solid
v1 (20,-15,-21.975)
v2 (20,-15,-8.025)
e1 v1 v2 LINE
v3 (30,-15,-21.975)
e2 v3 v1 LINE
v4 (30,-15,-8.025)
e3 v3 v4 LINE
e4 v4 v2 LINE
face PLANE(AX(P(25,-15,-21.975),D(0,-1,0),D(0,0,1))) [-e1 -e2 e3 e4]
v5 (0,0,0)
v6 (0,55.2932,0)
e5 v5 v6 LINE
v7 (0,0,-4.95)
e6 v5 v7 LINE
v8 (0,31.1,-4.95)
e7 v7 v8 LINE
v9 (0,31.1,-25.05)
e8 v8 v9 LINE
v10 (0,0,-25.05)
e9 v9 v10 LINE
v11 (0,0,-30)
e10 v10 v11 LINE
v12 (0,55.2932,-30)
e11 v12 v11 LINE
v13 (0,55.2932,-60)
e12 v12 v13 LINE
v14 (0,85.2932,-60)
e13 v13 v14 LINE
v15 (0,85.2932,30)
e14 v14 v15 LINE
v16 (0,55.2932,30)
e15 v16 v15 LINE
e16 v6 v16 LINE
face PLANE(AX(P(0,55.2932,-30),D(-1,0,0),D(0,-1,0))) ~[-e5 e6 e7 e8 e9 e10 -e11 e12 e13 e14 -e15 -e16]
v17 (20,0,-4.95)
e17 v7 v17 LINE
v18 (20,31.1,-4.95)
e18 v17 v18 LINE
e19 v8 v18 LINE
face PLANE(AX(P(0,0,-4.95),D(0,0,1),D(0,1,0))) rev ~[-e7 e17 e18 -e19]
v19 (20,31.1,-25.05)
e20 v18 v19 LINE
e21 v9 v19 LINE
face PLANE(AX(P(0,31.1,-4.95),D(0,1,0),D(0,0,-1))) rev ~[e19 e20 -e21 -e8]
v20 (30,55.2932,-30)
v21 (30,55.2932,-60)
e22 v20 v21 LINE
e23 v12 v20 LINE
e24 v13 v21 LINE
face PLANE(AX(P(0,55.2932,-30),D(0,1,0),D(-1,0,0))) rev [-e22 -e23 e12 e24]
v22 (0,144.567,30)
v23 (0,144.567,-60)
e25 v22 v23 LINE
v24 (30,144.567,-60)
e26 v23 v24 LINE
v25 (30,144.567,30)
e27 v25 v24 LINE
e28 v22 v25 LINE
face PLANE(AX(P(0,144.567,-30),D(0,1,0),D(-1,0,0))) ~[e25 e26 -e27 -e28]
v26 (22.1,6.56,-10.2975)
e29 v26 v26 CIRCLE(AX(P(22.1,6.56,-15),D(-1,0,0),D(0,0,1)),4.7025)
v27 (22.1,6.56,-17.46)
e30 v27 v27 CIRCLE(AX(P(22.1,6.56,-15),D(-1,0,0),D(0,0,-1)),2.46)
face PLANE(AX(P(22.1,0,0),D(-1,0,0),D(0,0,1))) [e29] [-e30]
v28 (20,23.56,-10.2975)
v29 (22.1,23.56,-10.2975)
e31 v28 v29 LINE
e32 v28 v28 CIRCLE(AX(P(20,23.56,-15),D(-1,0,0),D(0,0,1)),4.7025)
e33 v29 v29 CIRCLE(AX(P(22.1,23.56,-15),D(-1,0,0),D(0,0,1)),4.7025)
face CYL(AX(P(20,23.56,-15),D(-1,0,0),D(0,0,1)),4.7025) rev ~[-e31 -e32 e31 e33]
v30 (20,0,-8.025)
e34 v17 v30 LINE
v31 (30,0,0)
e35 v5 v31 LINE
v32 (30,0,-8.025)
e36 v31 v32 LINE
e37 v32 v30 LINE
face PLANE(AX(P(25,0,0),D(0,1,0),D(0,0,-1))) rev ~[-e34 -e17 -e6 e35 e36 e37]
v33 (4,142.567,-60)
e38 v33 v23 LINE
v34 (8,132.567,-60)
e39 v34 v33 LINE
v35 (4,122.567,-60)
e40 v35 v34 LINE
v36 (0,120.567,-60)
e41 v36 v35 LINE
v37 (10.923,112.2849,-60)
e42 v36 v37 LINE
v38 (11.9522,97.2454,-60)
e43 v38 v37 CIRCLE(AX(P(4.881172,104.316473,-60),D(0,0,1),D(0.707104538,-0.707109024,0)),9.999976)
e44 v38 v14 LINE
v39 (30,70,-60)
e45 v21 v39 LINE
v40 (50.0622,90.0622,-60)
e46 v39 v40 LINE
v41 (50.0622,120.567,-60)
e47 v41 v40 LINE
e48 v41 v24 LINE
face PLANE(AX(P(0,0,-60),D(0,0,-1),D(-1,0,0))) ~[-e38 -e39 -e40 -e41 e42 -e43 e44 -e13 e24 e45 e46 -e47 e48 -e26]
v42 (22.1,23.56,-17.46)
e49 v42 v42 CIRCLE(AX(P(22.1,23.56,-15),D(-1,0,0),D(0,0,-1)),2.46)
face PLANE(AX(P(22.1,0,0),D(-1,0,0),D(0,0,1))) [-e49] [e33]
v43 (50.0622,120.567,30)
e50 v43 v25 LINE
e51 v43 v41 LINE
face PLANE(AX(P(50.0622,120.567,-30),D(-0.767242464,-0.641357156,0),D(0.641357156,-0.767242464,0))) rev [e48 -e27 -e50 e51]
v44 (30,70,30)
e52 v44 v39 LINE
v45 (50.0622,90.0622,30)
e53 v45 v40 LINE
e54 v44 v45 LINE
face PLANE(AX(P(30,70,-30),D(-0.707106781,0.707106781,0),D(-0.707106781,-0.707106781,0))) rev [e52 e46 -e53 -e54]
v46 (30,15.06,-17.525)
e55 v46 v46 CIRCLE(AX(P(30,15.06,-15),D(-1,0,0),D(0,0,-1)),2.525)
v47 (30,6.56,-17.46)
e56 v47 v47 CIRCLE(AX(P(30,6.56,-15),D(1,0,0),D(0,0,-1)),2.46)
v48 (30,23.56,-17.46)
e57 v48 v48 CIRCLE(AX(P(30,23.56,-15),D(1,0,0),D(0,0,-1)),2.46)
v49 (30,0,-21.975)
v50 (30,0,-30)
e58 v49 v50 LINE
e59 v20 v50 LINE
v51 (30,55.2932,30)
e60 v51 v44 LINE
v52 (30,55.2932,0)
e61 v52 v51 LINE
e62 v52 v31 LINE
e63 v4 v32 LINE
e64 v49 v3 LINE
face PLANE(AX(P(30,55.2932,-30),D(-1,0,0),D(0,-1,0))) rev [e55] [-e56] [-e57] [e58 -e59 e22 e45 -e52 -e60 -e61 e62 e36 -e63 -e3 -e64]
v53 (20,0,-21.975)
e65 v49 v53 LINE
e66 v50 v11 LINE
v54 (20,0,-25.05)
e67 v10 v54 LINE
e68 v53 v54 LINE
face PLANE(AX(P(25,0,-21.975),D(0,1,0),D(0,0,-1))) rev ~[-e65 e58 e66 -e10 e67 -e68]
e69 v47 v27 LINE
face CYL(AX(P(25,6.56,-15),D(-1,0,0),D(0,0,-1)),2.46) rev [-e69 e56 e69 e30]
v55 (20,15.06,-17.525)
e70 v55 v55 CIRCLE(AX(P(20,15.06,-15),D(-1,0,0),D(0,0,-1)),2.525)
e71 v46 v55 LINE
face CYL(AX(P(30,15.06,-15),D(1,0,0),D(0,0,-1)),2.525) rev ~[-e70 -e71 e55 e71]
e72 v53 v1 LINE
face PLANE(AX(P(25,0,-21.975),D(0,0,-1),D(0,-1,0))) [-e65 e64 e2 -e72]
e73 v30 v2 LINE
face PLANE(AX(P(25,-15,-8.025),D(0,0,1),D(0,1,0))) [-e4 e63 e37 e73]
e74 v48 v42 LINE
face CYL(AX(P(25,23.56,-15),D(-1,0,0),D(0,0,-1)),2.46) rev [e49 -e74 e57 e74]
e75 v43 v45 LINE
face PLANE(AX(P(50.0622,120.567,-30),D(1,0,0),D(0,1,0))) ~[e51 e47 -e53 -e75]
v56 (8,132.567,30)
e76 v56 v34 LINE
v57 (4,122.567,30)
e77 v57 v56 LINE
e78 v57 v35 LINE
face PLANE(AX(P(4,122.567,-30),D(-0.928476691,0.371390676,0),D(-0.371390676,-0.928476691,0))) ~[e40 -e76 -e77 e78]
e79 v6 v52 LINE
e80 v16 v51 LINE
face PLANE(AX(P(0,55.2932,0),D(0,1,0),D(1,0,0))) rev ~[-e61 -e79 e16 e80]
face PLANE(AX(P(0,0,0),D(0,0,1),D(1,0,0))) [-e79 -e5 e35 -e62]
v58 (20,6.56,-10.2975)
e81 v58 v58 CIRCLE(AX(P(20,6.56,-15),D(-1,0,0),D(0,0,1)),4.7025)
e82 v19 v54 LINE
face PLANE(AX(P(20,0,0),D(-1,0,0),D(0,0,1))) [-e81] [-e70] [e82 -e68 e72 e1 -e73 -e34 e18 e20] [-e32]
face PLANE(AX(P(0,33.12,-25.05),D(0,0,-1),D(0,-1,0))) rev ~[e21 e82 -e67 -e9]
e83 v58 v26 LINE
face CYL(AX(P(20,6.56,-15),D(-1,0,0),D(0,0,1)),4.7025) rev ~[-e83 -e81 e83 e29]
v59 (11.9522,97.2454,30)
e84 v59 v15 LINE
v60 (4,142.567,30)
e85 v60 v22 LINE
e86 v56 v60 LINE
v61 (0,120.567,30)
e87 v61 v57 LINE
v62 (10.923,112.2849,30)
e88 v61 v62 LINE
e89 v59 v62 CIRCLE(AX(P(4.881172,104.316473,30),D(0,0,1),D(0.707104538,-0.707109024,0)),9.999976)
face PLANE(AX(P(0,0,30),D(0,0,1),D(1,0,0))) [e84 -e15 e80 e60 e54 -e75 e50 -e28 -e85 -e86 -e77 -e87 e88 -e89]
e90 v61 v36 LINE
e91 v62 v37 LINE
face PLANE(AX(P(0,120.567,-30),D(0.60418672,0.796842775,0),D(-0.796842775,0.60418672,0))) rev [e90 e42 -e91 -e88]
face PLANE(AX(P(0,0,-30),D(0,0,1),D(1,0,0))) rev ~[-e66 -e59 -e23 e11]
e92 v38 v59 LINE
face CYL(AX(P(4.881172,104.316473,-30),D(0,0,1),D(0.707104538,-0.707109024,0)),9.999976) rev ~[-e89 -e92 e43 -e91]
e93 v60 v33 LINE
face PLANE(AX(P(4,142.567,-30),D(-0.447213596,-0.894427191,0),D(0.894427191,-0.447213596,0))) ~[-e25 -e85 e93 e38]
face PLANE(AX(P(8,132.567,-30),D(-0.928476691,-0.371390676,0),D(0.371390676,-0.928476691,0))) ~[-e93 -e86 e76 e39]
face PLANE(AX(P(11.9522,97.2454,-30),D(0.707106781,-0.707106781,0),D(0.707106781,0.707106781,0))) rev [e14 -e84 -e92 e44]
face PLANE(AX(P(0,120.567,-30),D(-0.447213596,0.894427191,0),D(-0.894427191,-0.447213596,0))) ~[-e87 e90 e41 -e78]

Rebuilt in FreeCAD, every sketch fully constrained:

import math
import FreeCAD as App
import Part
import Sketcher
from FreeCAD import Vector
Q = App.Units.Quantity


def add_polygon(sketch, points):
    """Adds a closed chain of lines whose ends are joined by coincident constraints."""
    first, n = sketch.GeometryCount, len(points)
    for a, b in zip(points, points[1:] + points[:1]):
        sketch.addGeometry(Part.LineSegment(App.Vector(*a, 0), App.Vector(*b, 0)), False)
    for i in range(n):
        sketch.addConstraint(Sketcher.Constraint("Coincident", first + i, 2, first + (i + 1) % n, 1))

doc = App.newDocument("Part")
params = doc.addObject("Spreadsheet::Sheet", "Params")
for row, (alias, value) in enumerate([
    ("sketch1_width", "25 mm"),
    ("sketch1_height", "40 mm"),
    ("pad1_length", "30 mm"),
    ("sketch2_diameter", "4.92 mm"),
    ("pocket1_length", "30 mm"),
    ("sketch3_height", "20.1 mm"),
    ("sketch3_width", "33.12 mm"),
    ("pocket2_length", "20 mm"),
    ("sketch4_height", "13.95 mm"),
    ("sketch4_width", "5 mm"),
    ("pad2_length", "15 mm"),
    ("sketch5_diameter", "4.92 mm"),
    ("pocket3_length", "2.1 mm"),
    ("sketch6_diameter", "4.92 mm"),
    ("pocket4_length", "10 mm"),
    ("sketch7_diameter", "4.92 mm"),
    ("pocket5_length", "2.1 mm"),
    ("sketch8_diameter", "4.92 mm"),
    ("sketch8_width", "40 mm"),
    ("sketch8_width2", "15 mm"),
    ("sketch8_height", "30 mm"),
    ("sketch8_height2", "13.95 mm"),
    ("pad3_length", "5 mm"),
    ("sketch9_width", "30 mm"),
    ("pad4_length", "30 mm"),
    ("sketch10_diameter", "5.05 mm"),
    ("pocket6_length", "30 mm"),
    ("sketch11_width", "2.02 mm"),
    ("sketch11_height", "20.1 mm"),
    ("pad5_length", "20 mm"),
    ("sketch12_radius", "10 mm"),
    ("sketch12_width", "30 mm"),
    ("pad6_length", "30 mm"),
    ("sketch13_width", "30 mm"),
    ("sketch13_radius", "10 mm"),
    ("pad7_length", "30 mm"),
], start=1):
    params.set(f"A{row}", alias)
    params.set(f"B{row}", "=" + value)
    params.setAlias(f"B{row}", alias)

body = doc.addObject("PartDesign::Body", "Body")

sketch1 = body.newObject("Sketcher::SketchObject", "Sketch")
sketch1.AttachmentSupport = (doc.getObject("XY_Plane"), [""])
sketch1.MapMode = "FlatFace"
add_polygon(sketch1, [(0, 40), (0, 0), (25, 0), (25, 40)])
sketch1.addConstraint(Sketcher.Constraint("Vertical", 0))
sketch1.addConstraint(Sketcher.Constraint("Horizontal", 1))
sketch1.addConstraint(Sketcher.Constraint("Vertical", 2))
sketch1.addConstraint(Sketcher.Constraint("Horizontal", 3))
sketch1.addConstraint(Sketcher.Constraint("Coincident", 0, 2, -1, 1))
sketch1.addConstraint(Sketcher.Constraint("DistanceX", 1, 1, 1, 2, 25.0))
sketch1.addConstraint(Sketcher.Constraint("DistanceY", 0, 2, 0, 1, 40.0))
sketch1.setExpression("Constraints[9]", "Params.sketch1_width")
sketch1.setExpression("Constraints[10]", "Params.sketch1_height")
pad1 = body.newObject("PartDesign::Pad", "Pad")
pad1.Profile = sketch1
pad1.setExpression("Length", "Params.pad1_length")
pad1.Reversed = True

sketch2 = body.newObject("Sketcher::SketchObject", "Sketch001")
sketch2.AttachmentSupport = (doc.getObject("YZ_Plane"), [""])
sketch2.MapMode = "FlatFace"
sketch2.AttachmentOffset = App.Placement(Vector(0, 0, 25), App.Rotation())
sketch2.addGeometry(Part.Circle(Vector(6.6, -15, 0), Vector(0, 0, 1), 2.5), False)
sketch2.addConstraint(Sketcher.Constraint("Diameter", 0, 4.92))
sketch2.addConstraint(Sketcher.Constraint("DistanceY", 0, 3, -1, 1, 15.0))
sketch2.addConstraint(Sketcher.Constraint("DistanceX", -1, 1, 0, 3, 6.56))
sketch2.setExpression("Constraints[0]", "Params.sketch2_diameter")
pocket1 = body.newObject("PartDesign::Pocket", "Pocket")
pocket1.Profile = sketch2
pocket1.setExpression("Length", "Params.pocket1_length")

sketch3 = body.newObject("Sketcher::SketchObject", "Sketch002")
sketch3.AttachmentSupport = (doc.getObject("YZ_Plane"), [""])
sketch3.MapMode = "FlatFace"
add_polygon(sketch3, [(0, -25), (0, -5), (33, -5), (33, -25)])
sketch3.addConstraint(Sketcher.Constraint("Vertical", 0))
sketch3.addConstraint(Sketcher.Constraint("Horizontal", 1))
sketch3.addConstraint(Sketcher.Constraint("Vertical", 2))
sketch3.addConstraint(Sketcher.Constraint("Horizontal", 3))
sketch3.addConstraint(Sketcher.Constraint("PointOnObject", 0, 2, -2))
sketch3.addConstraint(Sketcher.Constraint("DistanceY", 0, 1, 0, 2, 20.1))
sketch3.addConstraint(Sketcher.Constraint("DistanceX", 1, 1, 1, 2, 33.12))
sketch3.addConstraint(Sketcher.Constraint("DistanceY", 0, 2, -1, 1, 4.95))
sketch3.setExpression("Constraints[9]", "Params.sketch3_height")
sketch3.setExpression("Constraints[10]", "Params.sketch3_width")
pocket2 = body.newObject("PartDesign::Pocket", "Pocket001")
pocket2.Profile = sketch3
pocket2.setExpression("Length", "Params.pocket2_length")
pocket2.Reversed = True

sketch4 = body.newObject("Sketcher::SketchObject", "Sketch003")
sketch4.AttachmentSupport = (doc.getObject("XZ_Plane"), [""])
sketch4.MapMode = "FlatFace"
add_polygon(sketch4, [(25, -8), (20, -8), (20, -22), (25, -22)])
sketch4.addConstraint(Sketcher.Constraint("Horizontal", 0))
sketch4.addConstraint(Sketcher.Constraint("Vertical", 1))
sketch4.addConstraint(Sketcher.Constraint("Horizontal", 2))
sketch4.addConstraint(Sketcher.Constraint("Vertical", 3))
sketch4.addConstraint(Sketcher.Constraint("DistanceY", 1, 2, 1, 1, 13.95))
sketch4.addConstraint(Sketcher.Constraint("DistanceX", 0, 2, 0, 1, 5.0))
sketch4.addConstraint(Sketcher.Constraint("DistanceX", -1, 1, 0, 2, 20.0))
sketch4.addConstraint(Sketcher.Constraint("DistanceY", 0, 2, -1, 1, 8.025))
sketch4.setExpression("Constraints[8]", "Params.sketch4_height")
sketch4.setExpression("Constraints[9]", "Params.sketch4_width")
pad2 = body.newObject("PartDesign::Pad", "Pad001")
pad2.Profile = sketch4
pad2.setExpression("Length", "Params.pad2_length")

sketch5 = body.newObject("Sketcher::SketchObject", "Sketch004")
sketch5.AttachmentSupport = (doc.getObject("YZ_Plane"), [""])
sketch5.MapMode = "FlatFace"
sketch5.AttachmentOffset = App.Placement(Vector(0, 0, 20), App.Rotation())
sketch5.addGeometry(Part.Circle(Vector(6.6, -15, 0), Vector(0, 0, 1), 4.7), False)
sketch5.addGeometry(Part.Circle(Vector(6.6, -15, 0), Vector(0, 0, 1), 2.5), False)
sketch5.addConstraint(Sketcher.Constraint("Coincident", 1, 3, 0, 3))
sketch5.addConstraint(Sketcher.Constraint("Diameter", 0, 9.405))
sketch5.addConstraint(Sketcher.Constraint("Diameter", 1, 4.92))
sketch5.addConstraint(Sketcher.Constraint("DistanceY", 0, 3, -1, 1, 15.0))
sketch5.addConstraint(Sketcher.Constraint("DistanceX", -1, 1, 0, 3, 6.56))
sketch5.setExpression("Constraints[2]", "Params.sketch5_diameter")
pocket3 = body.newObject("PartDesign::Pocket", "Pocket002")
pocket3.Profile = sketch5
pocket3.setExpression("Length", "Params.pocket3_length")
pocket3.Reversed = True

sketch6 = body.newObject("Sketcher::SketchObject", "Sketch005")
sketch6.AttachmentSupport = (doc.getObject("YZ_Plane"), [""])
sketch6.MapMode = "FlatFace"
sketch6.AttachmentOffset = App.Placement(Vector(0, 0, 25), App.Rotation())
sketch6.addGeometry(Part.Circle(Vector(23.6, -15, 0), Vector(0, 0, 1), 2.5), False)
sketch6.addConstraint(Sketcher.Constraint("Diameter", 0, 4.92))
sketch6.addConstraint(Sketcher.Constraint("DistanceY", 0, 3, -1, 1, 15.0))
sketch6.addConstraint(Sketcher.Constraint("DistanceX", -1, 1, 0, 3, 23.56))
sketch6.setExpression("Constraints[0]", "Params.sketch6_diameter")
pocket4 = body.newObject("PartDesign::Pocket", "Pocket003")
pocket4.Profile = sketch6
pocket4.setExpression("Length", "Params.pocket4_length")

sketch7 = body.newObject("Sketcher::SketchObject", "Sketch006")
sketch7.AttachmentSupport = (doc.getObject("YZ_Plane"), [""])
sketch7.MapMode = "FlatFace"
sketch7.AttachmentOffset = App.Placement(Vector(0, 0, 20), App.Rotation())
sketch7.addGeometry(Part.Circle(Vector(23.6, -15, 0), Vector(0, 0, 1), 4.7), False)
sketch7.addGeometry(Part.Circle(Vector(23.6, -15, 0), Vector(0, 0, 1), 2.5), False)
sketch7.addConstraint(Sketcher.Constraint("Coincident", 1, 3, 0, 3))
sketch7.addConstraint(Sketcher.Constraint("Diameter", 0, 9.405))
sketch7.addConstraint(Sketcher.Constraint("Diameter", 1, 4.92))
sketch7.addConstraint(Sketcher.Constraint("DistanceY", 0, 3, -1, 1, 15.0))
sketch7.addConstraint(Sketcher.Constraint("DistanceX", -1, 1, 0, 3, 23.56))
sketch7.setExpression("Constraints[2]", "Params.sketch7_diameter")
pocket5 = body.newObject("PartDesign::Pocket", "Pocket004")
pocket5.Profile = sketch7
pocket5.setExpression("Length", "Params.pocket5_length")
pocket5.Reversed = True

sketch8 = body.newObject("Sketcher::SketchObject", "Sketch007")
sketch8.AttachmentSupport = (doc.getObject("YZ_Plane"), [""])
sketch8.MapMode = "FlatFace"
sketch8.AttachmentOffset = App.Placement(Vector(0, 0, 25), App.Rotation())
add_polygon(sketch8, [(0, -30), (40, -30), (40, 0), (0, 0), (0, -8), (-15, -8), (-15, -22), (0, -22)])
sketch8.addGeometry(Part.Circle(Vector(6.6, -15, 0), Vector(0, 0, 1), 2.5), False)
sketch8.addGeometry(Part.Circle(Vector(23.6, -15, 0), Vector(0, 0, 1), 2.5), False)
sketch8.addConstraint(Sketcher.Constraint("Horizontal", 0))
sketch8.addConstraint(Sketcher.Constraint("Vertical", 1))
sketch8.addConstraint(Sketcher.Constraint("Horizontal", 2))
sketch8.addConstraint(Sketcher.Constraint("Vertical", 3))
sketch8.addConstraint(Sketcher.Constraint("Horizontal", 4))
sketch8.addConstraint(Sketcher.Constraint("Vertical", 5))
sketch8.addConstraint(Sketcher.Constraint("Horizontal", 6))
sketch8.addConstraint(Sketcher.Constraint("Vertical", 7))
sketch8.addConstraint(Sketcher.Constraint("Coincident", 2, 2, -1, 1))
sketch8.addConstraint(Sketcher.Constraint("Equal", 8, 9))
sketch8.addConstraint(Sketcher.Constraint("PointOnObject", 6, 2, -2))
sketch8.addConstraint(Sketcher.Constraint("Horizontal", 8, 3, 9, 3))
sketch8.addConstraint(Sketcher.Constraint("Equal", 3, 7))
sketch8.addConstraint(Sketcher.Constraint("Diameter", 8, 4.92))
sketch8.addConstraint(Sketcher.Constraint("DistanceX", 0, 1, 0, 2, 40.0))
sketch8.addConstraint(Sketcher.Constraint("DistanceX", 4, 2, 4, 1, 15.0))
sketch8.addConstraint(Sketcher.Constraint("DistanceY", 1, 1, 1, 2, 30.0))
sketch8.addConstraint(Sketcher.Constraint("DistanceY", 8, 3, -1, 1, 15.0))
sketch8.addConstraint(Sketcher.Constraint("DistanceX", 8, 3, 9, 3, 17.0))
sketch8.addConstraint(Sketcher.Constraint("DistanceY", 5, 2, 5, 1, 13.95))
sketch8.addConstraint(Sketcher.Constraint("DistanceX", -1, 1, 8, 3, 6.56))
sketch8.setExpression("Constraints[21]", "Params.sketch8_diameter")
sketch8.setExpression("Constraints[22]", "Params.sketch8_width")
sketch8.setExpression("Constraints[23]", "Params.sketch8_width2")
sketch8.setExpression("Constraints[24]", "Params.sketch8_height")
sketch8.setExpression("Constraints[27]", "Params.sketch8_height2")
pad3 = body.newObject("PartDesign::Pad", "Pad002")
pad3.Profile = sketch8
pad3.setExpression("Length", "Params.pad3_length")

sketch9 = body.newObject("Sketcher::SketchObject", "Sketch008")
sketch9.AttachmentSupport = (doc.getObject("XZ_Plane"), [""])
sketch9.MapMode = "FlatFace"
sketch9.AttachmentOffset = App.Placement(Vector(0, 0, -40), App.Rotation())
add_polygon(sketch9, [(30, -30), (0, -30), (0, 0), (30, 0)])
sketch9.addConstraint(Sketcher.Constraint("Horizontal", 0))
sketch9.addConstraint(Sketcher.Constraint("Vertical", 1))
sketch9.addConstraint(Sketcher.Constraint("Horizontal", 2))
sketch9.addConstraint(Sketcher.Constraint("Vertical", 3))
sketch9.addConstraint(Sketcher.Constraint("Coincident", 1, 2, -1, 1))
sketch9.addConstraint(Sketcher.Constraint("Equal", 2, 1))
sketch9.addConstraint(Sketcher.Constraint("DistanceX", 0, 2, 0, 1, 30.0))
sketch9.setExpression("Constraints[10]", "Params.sketch9_width")
pad4 = body.newObject("PartDesign::Pad", "Pad003")
pad4.Profile = sketch9
pad4.setExpression("Length", "Params.pad4_length")
pad4.Reversed = True

sketch10 = body.newObject("Sketcher::SketchObject", "Sketch009")
sketch10.AttachmentSupport = (doc.getObject("YZ_Plane"), [""])
sketch10.MapMode = "FlatFace"
sketch10.AttachmentOffset = App.Placement(Vector(0, 0, 30), App.Rotation())
sketch10.addGeometry(Part.Circle(Vector(15.1, -15, 0), Vector(0, 0, 1), 2.5), False)
sketch10.addConstraint(Sketcher.Constraint("Diameter", 0, 5.05))
sketch10.addConstraint(Sketcher.Constraint("DistanceY", 0, 3, -1, 1, 15.0))
sketch10.addConstraint(Sketcher.Constraint("DistanceX", -1, 1, 0, 3, 15.06))
sketch10.setExpression("Constraints[0]", "Params.sketch10_diameter")
pocket6 = body.newObject("PartDesign::Pocket", "Pocket005")
pocket6.Profile = sketch10
pocket6.setExpression("Length", "Params.pocket6_length")

sketch11 = body.newObject("Sketcher::SketchObject", "Sketch010")
sketch11.AttachmentSupport = (doc.getObject("YZ_Plane"), [""])
sketch11.MapMode = "FlatFace"
add_polygon(sketch11, [(33.1, -5), (33.1, -25.1), (31.1, -25.1), (31.1, -5)])
sketch11.addConstraint(Sketcher.Constraint("Vertical", 0))
sketch11.addConstraint(Sketcher.Constraint("Horizontal", 1))
sketch11.addConstraint(Sketcher.Constraint("Vertical", 2))
sketch11.addConstraint(Sketcher.Constraint("Horizontal", 3))
sketch11.addConstraint(Sketcher.Constraint("DistanceX", 1, 2, 1, 1, 2.02))
sketch11.addConstraint(Sketcher.Constraint("DistanceY", 0, 2, 0, 1, 20.1))
sketch11.addConstraint(Sketcher.Constraint("DistanceX", -1, 1, 1, 2, 31.1))
sketch11.addConstraint(Sketcher.Constraint("DistanceY", 0, 2, -1, 1, 25.05))
sketch11.setExpression("Constraints[8]", "Params.sketch11_width")
sketch11.setExpression("Constraints[9]", "Params.sketch11_height")
pad5 = body.newObject("PartDesign::Pad", "Pad004")
pad5.Profile = sketch11
pad5.setExpression("Length", "Params.pad5_length")

sketch12 = body.newObject("Sketcher::SketchObject", "Sketch011")
sketch12.AttachmentSupport = (doc.getObject("XY_Plane"), [""])
sketch12.MapMode = "FlatFace"
sketch12.addGeometry(Part.LineSegment(Vector(0, 85.3, 0), Vector(0, 70, 0)), False)
sketch12.addGeometry(Part.LineSegment(Vector(0, 70, 0), Vector(30, 70, 0)), False)
sketch12.addGeometry(Part.LineSegment(Vector(30, 70, 0), Vector(50.1, 90.1, 0)), False)
sketch12.addGeometry(Part.LineSegment(Vector(50.1, 90.1, 0), Vector(50.1, 120.6, 0)), False)
sketch12.addGeometry(Part.LineSegment(Vector(50.1, 120.6, 0), Vector(30, 144.6, 0)), False)
sketch12.addGeometry(Part.LineSegment(Vector(30, 144.6, 0), Vector(0, 144.6, 0)), False)
sketch12.addGeometry(Part.LineSegment(Vector(0, 144.6, 0), Vector(4, 142.6, 0)), False)
sketch12.addGeometry(Part.LineSegment(Vector(4, 142.6, 0), Vector(8, 132.6, 0)), False)
sketch12.addGeometry(Part.LineSegment(Vector(8, 132.6, 0), Vector(4, 122.6, 0)), False)
sketch12.addGeometry(Part.LineSegment(Vector(4, 122.6, 0), Vector(0, 120.6, 0)), False)
sketch12.addGeometry(Part.LineSegment(Vector(0, 120.6, 0), Vector(10.9, 112.3, 0)), False)
sketch12.addGeometry(Part.ArcOfCircle(Part.Circle(Vector(4.9, 104.3, 0), Vector(0, 0, 1), 10), math.radians(-45), math.radians(53)), False)
sketch12.addGeometry(Part.LineSegment(Vector(12, 97.2, 0), Vector(0, 85.3, 0)), False)
sketch12.addConstraint(Sketcher.Constraint("Coincident", 0, 2, 1, 1))
sketch12.addConstraint(Sketcher.Constraint("Coincident", 1, 2, 2, 1))
sketch12.addConstraint(Sketcher.Constraint("Coincident", 2, 2, 3, 1))
sketch12.addConstraint(Sketcher.Constraint("Coincident", 3, 2, 4, 1))
sketch12.addConstraint(Sketcher.Constraint("Coincident", 4, 2, 5, 1))
sketch12.addConstraint(Sketcher.Constraint("Coincident", 5, 2, 6, 1))
sketch12.addConstraint(Sketcher.Constraint("Coincident", 6, 2, 7, 1))
sketch12.addConstraint(Sketcher.Constraint("Coincident", 7, 2, 8, 1))
sketch12.addConstraint(Sketcher.Constraint("Coincident", 8, 2, 9, 1))
sketch12.addConstraint(Sketcher.Constraint("Coincident", 9, 2, 10, 1))
sketch12.addConstraint(Sketcher.Constraint("Tangent", 10, 2, 11, 2))
sketch12.addConstraint(Sketcher.Constraint("Tangent", 11, 1, 12, 1))
sketch12.addConstraint(Sketcher.Constraint("Coincident", 12, 2, 0, 1))
sketch12.addConstraint(Sketcher.Constraint("Vertical", 0))
sketch12.addConstraint(Sketcher.Constraint("Horizontal", 1))
sketch12.addConstraint(Sketcher.Constraint("Vertical", 3))
sketch12.addConstraint(Sketcher.Constraint("Horizontal", 5))
sketch12.addConstraint(Sketcher.Constraint("PointOnObject", 0, 2, -2))
sketch12.addConstraint(Sketcher.Constraint("PointOnObject", 5, 2, -2))
sketch12.addConstraint(Sketcher.Constraint("PointOnObject", 9, 2, -2))
sketch12.addConstraint(Sketcher.Constraint("Parallel", 2, 12))
sketch12.addConstraint(Sketcher.Constraint("Horizontal", 3, 2, 9, 2))
sketch12.addConstraint(Sketcher.Constraint("Vertical", 1, 2, 4, 2))
sketch12.addConstraint(Sketcher.Constraint("Vertical", 6, 2, 8, 2))
sketch12.addConstraint(Sketcher.Constraint("Equal", 7, 8))
sketch12.addConstraint(Sketcher.Constraint("Equal", 6, 9))
sketch12.addConstraint(Sketcher.Constraint("Radius", 11, 10.0))
sketch12.addConstraint(Sketcher.Constraint("Angle", 2, Q("45 deg")))
sketch12.addConstraint(Sketcher.Constraint("DistanceY", 7, 2, 6, 2, 10.0))
sketch12.addConstraint(Sketcher.Constraint("DistanceX", 1, 1, 1, 2, 30.0))
sketch12.addConstraint(Sketcher.Constraint("DistanceY", -1, 1, 0, 2, 70.0))
sketch12.addConstraint(Sketcher.Constraint("DistanceX", -1, 1, 6, 2, 4.0))
sketch12.addConstraint(Sketcher.Constraint("DistanceX", -1, 1, 7, 2, 8.0))
sketch12.addConstraint(Sketcher.Constraint("DistanceY", 3, 2, 4, 2, 24.0))
sketch12.addConstraint(Sketcher.Constraint("Angle", 10, Q("-37.1703 deg")))
sketch12.addConstraint(Sketcher.Constraint("Distance", 12, 16.903))
sketch12.addConstraint(Sketcher.Constraint("DistanceY", 0, 2, 0, 1, 15.2932))
sketch12.addConstraint(Sketcher.Constraint("DistanceY", 3, 1, 3, 2, 30.5048))
sketch12.setExpression("Constraints[26]", "Params.sketch12_radius")
sketch12.setExpression("Constraints[29]", "Params.sketch12_width")
pad6 = body.newObject("PartDesign::Pad", "Pad005")
pad6.Profile = sketch12
pad6.setExpression("Length", "Params.pad6_length")
pad6.Reversed = True

sketch13 = body.newObject("Sketcher::SketchObject", "Sketch012")
sketch13.AttachmentSupport = (doc.getObject("XY_Plane"), [""])
sketch13.MapMode = "FlatFace"
sketch13.addGeometry(Part.ArcOfCircle(Part.Circle(Vector(4.9, 104.3, 0), Vector(0, 0, 1), 10), math.radians(-45), math.radians(53)), False)
sketch13.addGeometry(Part.LineSegment(Vector(12, 97.2, 0), Vector(0, 85.3, 0)), False)
sketch13.addGeometry(Part.LineSegment(Vector(0, 85.3, 0), Vector(0, 55.3, 0)), False)
sketch13.addGeometry(Part.LineSegment(Vector(0, 55.3, 0), Vector(30, 55.3, 0)), False)
sketch13.addGeometry(Part.LineSegment(Vector(30, 55.3, 0), Vector(30, 70, 0)), False)
sketch13.addGeometry(Part.LineSegment(Vector(30, 70, 0), Vector(50.1, 90.1, 0)), False)
sketch13.addGeometry(Part.LineSegment(Vector(50.1, 90.1, 0), Vector(50.1, 120.6, 0)), False)
sketch13.addGeometry(Part.LineSegment(Vector(50.1, 120.6, 0), Vector(30, 144.6, 0)), False)
sketch13.addGeometry(Part.LineSegment(Vector(30, 144.6, 0), Vector(0, 144.6, 0)), False)
sketch13.addGeometry(Part.LineSegment(Vector(0, 144.6, 0), Vector(4, 142.6, 0)), False)
sketch13.addGeometry(Part.LineSegment(Vector(4, 142.6, 0), Vector(8, 132.6, 0)), False)
sketch13.addGeometry(Part.LineSegment(Vector(8, 132.6, 0), Vector(4, 122.6, 0)), False)
sketch13.addGeometry(Part.LineSegment(Vector(4, 122.6, 0), Vector(0, 120.6, 0)), False)
sketch13.addGeometry(Part.LineSegment(Vector(0, 120.6, 0), Vector(10.9, 112.3, 0)), False)
sketch13.addConstraint(Sketcher.Constraint("Tangent", 0, 1, 1, 1))
sketch13.addConstraint(Sketcher.Constraint("Coincident", 1, 2, 2, 1))
sketch13.addConstraint(Sketcher.Constraint("Coincident", 2, 2, 3, 1))
sketch13.addConstraint(Sketcher.Constraint("Coincident", 3, 2, 4, 1))
sketch13.addConstraint(Sketcher.Constraint("Coincident", 4, 2, 5, 1))
sketch13.addConstraint(Sketcher.Constraint("Coincident", 5, 2, 6, 1))
sketch13.addConstraint(Sketcher.Constraint("Coincident", 6, 2, 7, 1))
sketch13.addConstraint(Sketcher.Constraint("Coincident", 7, 2, 8, 1))
sketch13.addConstraint(Sketcher.Constraint("Coincident", 8, 2, 9, 1))
sketch13.addConstraint(Sketcher.Constraint("Coincident", 9, 2, 10, 1))
sketch13.addConstraint(Sketcher.Constraint("Coincident", 10, 2, 11, 1))
sketch13.addConstraint(Sketcher.Constraint("Coincident", 11, 2, 12, 1))
sketch13.addConstraint(Sketcher.Constraint("Coincident", 12, 2, 13, 1))
sketch13.addConstraint(Sketcher.Constraint("Tangent", 13, 2, 0, 2))
sketch13.addConstraint(Sketcher.Constraint("Vertical", 2))
sketch13.addConstraint(Sketcher.Constraint("Horizontal", 3))
sketch13.addConstraint(Sketcher.Constraint("Vertical", 4))
sketch13.addConstraint(Sketcher.Constraint("Vertical", 6))
sketch13.addConstraint(Sketcher.Constraint("Horizontal", 8))
sketch13.addConstraint(Sketcher.Constraint("PointOnObject", 1, 2, -2))
sketch13.addConstraint(Sketcher.Constraint("PointOnObject", 8, 2, -2))
sketch13.addConstraint(Sketcher.Constraint("PointOnObject", 12, 2, -2))
sketch13.addConstraint(Sketcher.Constraint("Parallel", 1, 5))
sketch13.addConstraint(Sketcher.Constraint("Horizontal", 6, 2, 12, 2))
sketch13.addConstraint(Sketcher.Constraint("Vertical", 4, 2, 7, 2))
sketch13.addConstraint(Sketcher.Constraint("Vertical", 9, 2, 11, 2))
sketch13.addConstraint(Sketcher.Constraint("Equal", 8, 2))
sketch13.addConstraint(Sketcher.Constraint("Equal", 10, 11))
sketch13.addConstraint(Sketcher.Constraint("Equal", 9, 12))
sketch13.addConstraint(Sketcher.Constraint("DistanceX", 3, 1, 3, 2, 30.0))
sketch13.addConstraint(Sketcher.Constraint("Radius", 0, 10.0))
sketch13.addConstraint(Sketcher.Constraint("Angle", 1, Q("-135 deg")))
sketch13.addConstraint(Sketcher.Constraint("DistanceY", -1, 1, 4, 2, 70.0))
sketch13.addConstraint(Sketcher.Constraint("DistanceX", -1, 1, 9, 2, 4.0))
sketch13.addConstraint(Sketcher.Constraint("DistanceX", -1, 1, 10, 2, 8.0))
sketch13.addConstraint(Sketcher.Constraint("DistanceY", 6, 2, 7, 2, 24.0))
sketch13.addConstraint(Sketcher.Constraint("DistanceY", 9, 2, 8, 2, 2.0))
sketch13.addConstraint(Sketcher.Constraint("Angle", 13, Q("-37.1703 deg")))
sketch13.addConstraint(Sketcher.Constraint("DistanceX", 0, 1, 5, 2, 38.11))
sketch13.addConstraint(Sketcher.Constraint("Distance", 1, 16.903))
sketch13.addConstraint(Sketcher.Constraint("DistanceY", 4, 1, 4, 2, 14.7068))
sketch13.setExpression("Constraints[29]", "Params.sketch13_width")
sketch13.setExpression("Constraints[30]", "Params.sketch13_radius")
pad7 = body.newObject("PartDesign::Pad", "Pad006")
pad7.Profile = sketch13
pad7.setExpression("Length", "Params.pad7_length")
doc.recompute()

datumplane = body.newObject("PartDesign::Plane", "DatumPlane")
datumplane.AttachmentSupport = (doc.getObject("XY_Plane"), [""])
datumplane.MapMode = "FlatFace"
datumplane.AttachmentOffset = App.Placement(Vector(0, 0, -15), App.Rotation())
mirrored = body.newObject("PartDesign::Mirrored", "Mirrored")
mirrored.Originals = [pad7]
mirrored.MirrorPlane = (datumplane, [""])
body.Tip = mirrored

doc.recompute()
